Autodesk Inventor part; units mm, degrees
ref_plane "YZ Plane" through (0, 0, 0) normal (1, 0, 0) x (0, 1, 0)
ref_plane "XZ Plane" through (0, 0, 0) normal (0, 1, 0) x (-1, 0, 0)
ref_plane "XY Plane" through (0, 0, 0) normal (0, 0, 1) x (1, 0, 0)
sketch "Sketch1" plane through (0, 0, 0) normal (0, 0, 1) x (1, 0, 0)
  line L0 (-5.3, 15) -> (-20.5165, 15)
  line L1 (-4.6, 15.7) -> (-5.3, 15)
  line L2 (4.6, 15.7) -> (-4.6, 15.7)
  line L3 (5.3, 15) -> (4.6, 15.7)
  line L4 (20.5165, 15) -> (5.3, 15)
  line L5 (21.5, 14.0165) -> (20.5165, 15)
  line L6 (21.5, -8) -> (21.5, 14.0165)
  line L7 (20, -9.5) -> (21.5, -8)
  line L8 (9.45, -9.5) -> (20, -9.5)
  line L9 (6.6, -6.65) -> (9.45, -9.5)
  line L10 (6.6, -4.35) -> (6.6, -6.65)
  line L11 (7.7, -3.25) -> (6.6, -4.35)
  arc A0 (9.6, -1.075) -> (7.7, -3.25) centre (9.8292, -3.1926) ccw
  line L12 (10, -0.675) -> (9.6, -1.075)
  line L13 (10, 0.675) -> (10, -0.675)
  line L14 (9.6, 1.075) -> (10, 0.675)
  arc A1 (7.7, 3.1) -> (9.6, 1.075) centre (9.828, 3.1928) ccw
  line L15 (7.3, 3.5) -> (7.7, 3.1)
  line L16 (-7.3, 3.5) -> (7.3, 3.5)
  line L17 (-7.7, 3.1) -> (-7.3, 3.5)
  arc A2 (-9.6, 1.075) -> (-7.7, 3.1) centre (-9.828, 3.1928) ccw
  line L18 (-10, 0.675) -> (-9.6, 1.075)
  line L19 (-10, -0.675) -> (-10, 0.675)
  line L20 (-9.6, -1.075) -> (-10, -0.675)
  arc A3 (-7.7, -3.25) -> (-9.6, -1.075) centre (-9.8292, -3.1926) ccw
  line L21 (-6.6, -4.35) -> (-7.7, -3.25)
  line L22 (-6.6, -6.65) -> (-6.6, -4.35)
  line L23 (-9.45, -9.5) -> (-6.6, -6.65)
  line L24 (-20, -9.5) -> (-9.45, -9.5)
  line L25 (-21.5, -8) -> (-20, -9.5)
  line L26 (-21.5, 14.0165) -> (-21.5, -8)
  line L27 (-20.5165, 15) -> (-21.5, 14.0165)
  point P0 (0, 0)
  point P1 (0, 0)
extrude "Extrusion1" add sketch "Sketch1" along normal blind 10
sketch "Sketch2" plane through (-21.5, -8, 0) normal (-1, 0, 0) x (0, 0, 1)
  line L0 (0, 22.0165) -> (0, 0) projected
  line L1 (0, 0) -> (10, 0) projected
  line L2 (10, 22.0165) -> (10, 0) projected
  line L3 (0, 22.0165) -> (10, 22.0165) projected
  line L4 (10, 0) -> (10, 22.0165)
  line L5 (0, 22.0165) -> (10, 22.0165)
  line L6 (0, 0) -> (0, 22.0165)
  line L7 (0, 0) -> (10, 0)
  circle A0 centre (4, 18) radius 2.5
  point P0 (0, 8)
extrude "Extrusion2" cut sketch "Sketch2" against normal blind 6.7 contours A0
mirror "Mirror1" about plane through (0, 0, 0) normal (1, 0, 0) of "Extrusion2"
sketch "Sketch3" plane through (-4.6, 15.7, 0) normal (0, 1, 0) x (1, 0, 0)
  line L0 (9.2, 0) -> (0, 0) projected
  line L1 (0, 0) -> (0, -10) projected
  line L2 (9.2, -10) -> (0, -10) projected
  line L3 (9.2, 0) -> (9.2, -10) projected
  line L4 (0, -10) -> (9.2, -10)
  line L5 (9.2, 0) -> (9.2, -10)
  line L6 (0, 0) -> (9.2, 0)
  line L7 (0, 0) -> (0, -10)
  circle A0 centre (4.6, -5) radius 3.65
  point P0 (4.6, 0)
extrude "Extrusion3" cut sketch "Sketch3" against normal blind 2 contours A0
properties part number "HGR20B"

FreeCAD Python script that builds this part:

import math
import FreeCAD as App
import Part
import Sketcher
from FreeCAD import Vector

doc = App.newDocument("Part")
body = doc.addObject("PartDesign::Body", "Body")

# Sketch on XY plane
sketch1 = body.newObject("Sketcher::SketchObject", "Sketch")
sketch1.AttachmentSupport = (doc.getObject("XY_Plane"), [""])
sketch1.MapMode = "FlatFace"
sketch1.addGeometry(Part.LineSegment(Vector(-4.6, 15.7, 0), Vector(-5.3, 15, 0)), False)
sketch1.addGeometry(Part.LineSegment(Vector(-5.3, 15, 0), Vector(-20.5, 15, 0)), False)
sketch1.addGeometry(Part.LineSegment(Vector(-20.5, 15, 0), Vector(-21.5, 14, 0)), False)
sketch1.addGeometry(Part.LineSegment(Vector(-21.5, 14, 0), Vector(-21.5, -8, 0)), False)
sketch1.addGeometry(Part.LineSegment(Vector(-21.5, -8, 0), Vector(-20, -9.5, 0)), False)
sketch1.addGeometry(Part.LineSegment(Vector(-20, -9.5, 0), Vector(-9.4, -9.5, 0)), False)
sketch1.addGeometry(Part.LineSegment(Vector(-9.4, -9.5, 0), Vector(-6.6, -6.7, 0)), False)
sketch1.addGeometry(Part.LineSegment(Vector(-6.6, -6.7, 0), Vector(-6.6, -4.3, 0)), False)
sketch1.addGeometry(Part.LineSegment(Vector(-6.6, -4.3, 0), Vector(-7.7, -3.2, 0)), False)
sketch1.addGeometry(Part.ArcOfCircle(Part.Circle(Vector(-9.8, -3.2, 0), Vector(0, 0, 1), 2.1), math.radians(-2), math.radians(84)), False)
sketch1.addGeometry(Part.LineSegment(Vector(-9.6, -1.1, 0), Vector(-10, -0.7, 0)), False)
sketch1.addGeometry(Part.LineSegment(Vector(-10, -0.7, 0), Vector(-10, 0.7, 0)), False)
sketch1.addGeometry(Part.LineSegment(Vector(-10, 0.7, 0), Vector(-9.6, 1.1, 0)), False)
sketch1.addGeometry(Part.ArcOfCircle(Part.Circle(Vector(-9.8, 3.2, 0), Vector(0, 0, 1), 2.1), math.radians(-84), math.radians(-2)), False)
sketch1.addGeometry(Part.LineSegment(Vector(-7.7, 3.1, 0), Vector(-7.3, 3.5, 0)), False)
sketch1.addGeometry(Part.LineSegment(Vector(-7.3, 3.5, 0), Vector(7.3, 3.5, 0)), False)
sketch1.addGeometry(Part.LineSegment(Vector(7.3, 3.5, 0), Vector(7.7, 3.1, 0)), False)
sketch1.addGeometry(Part.ArcOfCircle(Part.Circle(Vector(9.8, 3.2, 0), Vector(0, 0, 1), 2.1), math.radians(-178), math.radians(-96)), False)
sketch1.addGeometry(Part.LineSegment(Vector(9.6, 1.1, 0), Vector(10, 0.7, 0)), False)
sketch1.addGeometry(Part.LineSegment(Vector(10, 0.7, 0), Vector(10, -0.7, 0)), False)
sketch1.addGeometry(Part.LineSegment(Vector(10, -0.7, 0), Vector(9.6, -1.1, 0)), False)
sketch1.addGeometry(Part.ArcOfCircle(Part.Circle(Vector(9.8, -3.2, 0), Vector(0, 0, 1), 2.1), math.radians(96), math.radians(182)), False)
sketch1.addGeometry(Part.LineSegment(Vector(7.7, -3.2, 0), Vector(6.6, -4.3, 0)), False)
sketch1.addGeometry(Part.LineSegment(Vector(6.6, -4.3, 0), Vector(6.6, -6.7, 0)), False)
sketch1.addGeometry(Part.LineSegment(Vector(6.6, -6.7, 0), Vector(9.4, -9.5, 0)), False)
sketch1.addGeometry(Part.LineSegment(Vector(9.4, -9.5, 0), Vector(20, -9.5, 0)), False)
sketch1.addGeometry(Part.LineSegment(Vector(20, -9.5, 0), Vector(21.5, -8, 0)), False)
sketch1.addGeometry(Part.LineSegment(Vector(21.5, -8, 0), Vector(21.5, 14, 0)), False)
sketch1.addGeometry(Part.LineSegment(Vector(21.5, 14, 0), Vector(20.5, 15, 0)), False)
sketch1.addGeometry(Part.LineSegment(Vector(20.5, 15, 0), Vector(5.3, 15, 0)), False)
sketch1.addGeometry(Part.LineSegment(Vector(5.3, 15, 0), Vector(4.6, 15.7, 0)), False)
sketch1.addGeometry(Part.LineSegment(Vector(4.6, 15.7, 0), Vector(-4.6, 15.7, 0)), False)
sketch1.addConstraint(Sketcher.Constraint("Coincident", 0, 2, 1, 1))
sketch1.addConstraint(Sketcher.Constraint("Coincident", 1, 2, 2, 1))
sketch1.addConstraint(Sketcher.Constraint("Coincident", 2, 2, 3, 1))
sketch1.addConstraint(Sketcher.Constraint("Coincident", 3, 2, 4, 1))
sketch1.addConstraint(Sketcher.Constraint("Coincident", 4, 2, 5, 1))
sketch1.addConstraint(Sketcher.Constraint("Coincident", 5, 2, 6, 1))
sketch1.addConstraint(Sketcher.Constraint("Coincident", 6, 2, 7, 1))
sketch1.addConstraint(Sketcher.Constraint("Coincident", 7, 2, 8, 1))
sketch1.addConstraint(Sketcher.Constraint("Coincident", 8, 2, 9, 1))
sketch1.addConstraint(Sketcher.Constraint("Coincident", 9, 2, 10, 1))
sketch1.addConstraint(Sketcher.Constraint("Coincident", 10, 2, 11, 1))
sketch1.addConstraint(Sketcher.Constraint("Coincident", 11, 2, 12, 1))
sketch1.addConstraint(Sketcher.Constraint("Coincident", 12, 2, 13, 1))
sketch1.addConstraint(Sketcher.Constraint("Coincident", 13, 2, 14, 1))
sketch1.addConstraint(Sketcher.Constraint("Coincident", 14, 2, 15, 1))
sketch1.addConstraint(Sketcher.Constraint("Coincident", 15, 2, 16, 1))
sketch1.addConstraint(Sketcher.Constraint("Coincident", 16, 2, 17, 1))
sketch1.addConstraint(Sketcher.Constraint("Coincident", 17, 2, 18, 1))
sketch1.addConstraint(Sketcher.Constraint("Coincident", 18, 2, 19, 1))
sketch1.addConstraint(Sketcher.Constraint("Coincident", 19, 2, 20, 1))
sketch1.addConstraint(Sketcher.Constraint("Coincident", 20, 2, 21, 1))
sketch1.addConstraint(Sketcher.Constraint("Coincident", 21, 2, 22, 1))
sketch1.addConstraint(Sketcher.Constraint("Coincident", 22, 2, 23, 1))
sketch1.addConstraint(Sketcher.Constraint("Coincident", 23, 2, 24, 1))
sketch1.addConstraint(Sketcher.Constraint("Coincident", 24, 2, 25, 1))
sketch1.addConstraint(Sketcher.Constraint("Coincident", 25, 2, 26, 1))
sketch1.addConstraint(Sketcher.Constraint("Coincident", 26, 2, 27, 1))
sketch1.addConstraint(Sketcher.Constraint("Coincident", 27, 2, 28, 1))
sketch1.addConstraint(Sketcher.Constraint("Coincident", 28, 2, 29, 1))
sketch1.addConstraint(Sketcher.Constraint("Coincident", 29, 2, 30, 1))
sketch1.addConstraint(Sketcher.Constraint("Coincident", 30, 2, 31, 1))
sketch1.addConstraint(Sketcher.Constraint("Coincident", 31, 2, 0, 1))
sketch1.addConstraint(Sketcher.Constraint("Horizontal", 1))
sketch1.addConstraint(Sketcher.Constraint("Vertical", 3))
sketch1.addConstraint(Sketcher.Constraint("Horizontal", 5))
sketch1.addConstraint(Sketcher.Constraint("Vertical", 7))
sketch1.addConstraint(Sketcher.Constraint("Vertical", 11))
sketch1.addConstraint(Sketcher.Constraint("Horizontal", 15))
sketch1.addConstraint(Sketcher.Constraint("Vertical", 19))
sketch1.addConstraint(Sketcher.Constraint("Vertical", 23))
sketch1.addConstraint(Sketcher.Constraint("Horizontal", 25))
sketch1.addConstraint(Sketcher.Constraint("Vertical", 27))
sketch1.addConstraint(Sketcher.Constraint("Horizontal", 29))
sketch1.addConstraint(Sketcher.Constraint("Horizontal", 31))
sketch1.addConstraint(Sketcher.Constraint("Equal", 9, 13))
sketch1.addConstraint(Sketcher.Constraint("Equal", 13, 17))
sketch1.addConstraint(Sketcher.Constraint("Equal", 17, 21))
sketch1.addConstraint(Sketcher.Constraint("Symmetric", 9, 2, 17, 2, -1, 1))
sketch1.addConstraint(Sketcher.Constraint("Symmetric", 10, 2, 18, 2, -1, 1))
sketch1.addConstraint(Sketcher.Constraint("Symmetric", 12, 2, 20, 2, -1, 1))
sketch1.addConstraint(Sketcher.Constraint("Symmetric", 13, 3, 17, 3, -2))
sketch1.addConstraint(Sketcher.Constraint("Symmetric", 8, 2, 21, 2, -2))
sketch1.addConstraint(Sketcher.Constraint("Symmetric", 7, 2, 22, 2, -2))
sketch1.addConstraint(Sketcher.Constraint("Symmetric", 5, 2, 24, 2, -2))
sketch1.addConstraint(Sketcher.Constraint("Symmetric", 3, 2, 26, 2, -2))
sketch1.addConstraint(Sketcher.Constraint("Symmetric", 1, 2, 28, 2, -2))
sketch1.addConstraint(Sketcher.Constraint("Parallel", 0, 2))
sketch1.addConstraint(Sketcher.Constraint("Perpendicular", 2, 4))
sketch1.addConstraint(Sketcher.Constraint("Perpendicular", 4, 6))
sketch1.addConstraint(Sketcher.Constraint("Perpendicular", 6, 8))
sketch1.addConstraint(Sketcher.Constraint("Parallel", 8, 10))
sketch1.addConstraint(Sketcher.Constraint("Perpendicular", 10, 12))
sketch1.addConstraint(Sketcher.Constraint("Parallel", 12, 14))
sketch1.addConstraint(Sketcher.Constraint("Perpendicular", 14, 16))
sketch1.addConstraint(Sketcher.Constraint("Perpendicular", 18, 20))
sketch1.addConstraint(Sketcher.Constraint("Parallel", 20, 22))
sketch1.addConstraint(Sketcher.Constraint("Perpendicular", 22, 24))
sketch1.addConstraint(Sketcher.Constraint("Perpendicular", 24, 26))
sketch1.addConstraint(Sketcher.Constraint("Perpendicular", 26, 28))
sketch1.addConstraint(Sketcher.Constraint("Parallel", 28, 30))
sketch1.addConstraint(Sketcher.Constraint("Horizontal", 13, 2, 16, 2))
sketch1.addConstraint(Sketcher.Constraint("Horizontal", 12, 2, 17, 2))
sketch1.addConstraint(Sketcher.Constraint("Vertical", 8, 2, 13, 2))
sketch1.addConstraint(Sketcher.Constraint("Equal", 1, 29))
sketch1.addConstraint(Sketcher.Constraint("Equal", 12, 14))
sketch1.addConstraint(Sketcher.Constraint("Radius", 9, 2.13))
sketch1.addConstraint(Sketcher.Constraint("DistanceX", 15, 1, 15, 2, 14.6))
sketch1.addConstraint(Sketcher.Constraint("DistanceX", 31, 2, 31, 1, 9.2))
sketch1.addConstraint(Sketcher.Constraint("DistanceY", 7, 1, 7, 2, 2.3))
sketch1.addConstraint(Sketcher.Constraint("DistanceY", -1, 1, 0, 2, 15.0))
sketch1.addConstraint(Sketcher.Constraint("DistanceY", 3, 2, -1, 1, 8.0))
sketch1.addConstraint(Sketcher.Constraint("DistanceX", 4, 2, -1, 1, 20.0))
sketch1.addConstraint(Sketcher.Constraint("DistanceX", 10, 2, -1, 1, 10.0))
sketch1.addConstraint(Sketcher.Constraint("DistanceX", 9, 2, 7, 2, 3.0))
sketch1.addConstraint(Sketcher.Constraint("DistanceX", 13, 2, 15, 2, 15.0))
sketch1.addConstraint(Sketcher.Constraint("DistanceX", 29, 2, 15, 2, 2.0))
sketch1.addConstraint(Sketcher.Constraint("DistanceX", 5, 1, 5, 2, 10.55))
sketch1.addConstraint(Sketcher.Constraint("DistanceY", 11, 1, 11, 2, 1.35))
sketch1.addConstraint(Sketcher.Constraint("DistanceX", 2, 2, -1, 1, 21.5))
sketch1.addConstraint(Sketcher.Constraint("DistanceY", -1, 1, 13, 2, 3.1))
sketch1.addConstraint(Sketcher.Constraint("DistanceX", 1, 2, 1, 1, 15.2165))
pad1 = body.newObject("PartDesign::Pad", "Pad")
pad1.Profile = sketch1
pad1.Length = 10

# Sketch on YZ plane
sketch2 = body.newObject("Sketcher::SketchObject", "Sketch001")
sketch2.AttachmentSupport = (doc.getObject("YZ_Plane"), [""])
sketch2.MapMode = "FlatFace"
sketch2.AttachmentOffset = App.Placement(Vector(0, 0, -21.5), App.Rotation())
sketch2.addGeometry(Part.Circle(Vector(10, 4, 0), Vector(0, 0, 1), 2.5), False)
sketch2.addConstraint(Sketcher.Constraint("Diameter", 0, 5.0))
sketch2.addConstraint(Sketcher.Constraint("DistanceX", -1, 1, 0, 3, 10.0))
sketch2.addConstraint(Sketcher.Constraint("DistanceY", -1, 1, 0, 3, 4.0))
pocket1 = body.newObject("PartDesign::Pocket", "Pocket")
pocket1.Profile = sketch2
pocket1.Length = 6.7
pocket1.Reversed = True
doc.recompute()

mirrored = body.newObject("PartDesign::Mirrored", "Mirrored")
mirrored.Originals = [pocket1]
mirrored.MirrorPlane = (doc.getObject("YZ_Plane"), [""])
body.Tip = mirrored

# Sketch on XZ plane
sketch3 = body.newObject("Sketcher::SketchObject", "Sketch002")
sketch3.AttachmentSupport = (doc.getObject("XZ_Plane"), [""])
sketch3.MapMode = "FlatFace"
sketch3.AttachmentOffset = App.Placement(Vector(0, 0, -15.7), App.Rotation())
sketch3.addGeometry(Part.Circle(Vector(0, 5, 0), Vector(0, 0, 1), 3.6), False)
sketch3.addConstraint(Sketcher.Constraint("PointOnObject", 0, 3, -2))
sketch3.addConstraint(Sketcher.Constraint("Diameter", 0, 7.3))
sketch3.addConstraint(Sketcher.Constraint("DistanceY", -1, 1, 0, 3, 5.0))
pocket2 = body.newObject("PartDesign::Pocket", "Pocket001")
pocket2.Profile = sketch3
pocket2.Length = 2
pocket2.Reversed = True

doc.recompute()
